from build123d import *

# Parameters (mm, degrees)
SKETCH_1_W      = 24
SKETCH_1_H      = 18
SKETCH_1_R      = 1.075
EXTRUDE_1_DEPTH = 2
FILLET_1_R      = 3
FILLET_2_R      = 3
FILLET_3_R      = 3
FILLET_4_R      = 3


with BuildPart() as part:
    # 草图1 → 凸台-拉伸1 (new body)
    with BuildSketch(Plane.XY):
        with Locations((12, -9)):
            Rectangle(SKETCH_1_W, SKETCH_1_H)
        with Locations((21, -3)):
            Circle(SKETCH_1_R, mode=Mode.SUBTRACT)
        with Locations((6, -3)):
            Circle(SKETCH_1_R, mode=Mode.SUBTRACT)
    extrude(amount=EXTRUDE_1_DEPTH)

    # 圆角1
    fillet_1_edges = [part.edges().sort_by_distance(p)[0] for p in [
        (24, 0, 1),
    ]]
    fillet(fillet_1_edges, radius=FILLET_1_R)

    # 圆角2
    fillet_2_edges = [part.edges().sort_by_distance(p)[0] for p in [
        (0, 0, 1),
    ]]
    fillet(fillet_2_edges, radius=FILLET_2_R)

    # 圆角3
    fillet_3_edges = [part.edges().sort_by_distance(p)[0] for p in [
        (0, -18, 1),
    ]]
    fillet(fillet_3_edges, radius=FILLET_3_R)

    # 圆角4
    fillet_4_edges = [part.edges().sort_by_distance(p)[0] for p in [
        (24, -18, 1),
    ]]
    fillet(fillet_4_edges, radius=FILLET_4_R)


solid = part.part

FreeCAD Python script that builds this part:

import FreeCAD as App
import Part
import Sketcher
from FreeCAD import Vector


def edges_at(feature, points):
    """Names of the edges that pass closest to the given points."""
    edges = feature.Shape.Edges
    near = lambda p: min(range(len(edges)), key=lambda i: edges[i].distToShape(Part.Vertex(*p))[0])
    return sorted({f"Edge{near(p) + 1}" for p in points})

doc = App.newDocument("Part")
body = doc.addObject("PartDesign::Body", "Body")

sketch1 = body.newObject("Sketcher::SketchObject", "Sketch")
sketch1.AttachmentSupport = (doc.getObject("XY_Plane"), [""])
sketch1.MapMode = "FlatFace"
sketch1.addGeometry([
    Part.LineSegment(Vector(0, 0, 0), Vector(0, -18, 0)),
    Part.LineSegment(Vector(0, -18, 0), Vector(24, -18, 0)),
    Part.LineSegment(Vector(24, -18, 0), Vector(24, 0, 0)),
    Part.LineSegment(Vector(24, 0, 0), Vector(0, 0, 0)),
    Part.Circle(Vector(6, -3, 0), Vector(0, 0, 1), 1.1),
    Part.Circle(Vector(21, -3, 0), Vector(0, 0, 1), 1.1),
], False)
sketch1.addConstraint([
    Sketcher.Constraint("Coincident", 0, 2, 1, 1),
    Sketcher.Constraint("Coincident", 1, 2, 2, 1),
    Sketcher.Constraint("Coincident", 2, 2, 3, 1),
    Sketcher.Constraint("Coincident", 3, 2, 0, 1),
    Sketcher.Constraint("Vertical", 0),
    Sketcher.Constraint("Horizontal", 1),
    Sketcher.Constraint("Vertical", 2),
    Sketcher.Constraint("Horizontal", 3),
    Sketcher.Constraint("Coincident", 3, 2, -1, 1),
    Sketcher.Constraint("Equal", 4, 5),
    Sketcher.Constraint("Horizontal", 4, 3, 5, 3),
    Sketcher.Constraint("Diameter", 4, 2.15),
    Sketcher.Constraint("DistanceX", 1, 1, 1, 2, 24.0),
    Sketcher.Constraint("DistanceY", 0, 2, 0, 1, 18.0),
    Sketcher.Constraint("DistanceX", -1, 1, 4, 3, 6.0),
    Sketcher.Constraint("DistanceY", 4, 3, -1, 1, 3.0),
    Sketcher.Constraint("DistanceX", -1, 1, 5, 3, 21.0),
])
pad1 = body.newObject("PartDesign::Pad", "Pad")
pad1.Profile = sketch1
pad1.Length = 2
doc.recompute()

fillet = body.newObject("PartDesign::Fillet", "Fillet")
fillet.Base = (pad1, edges_at(pad1, [(24, 0, 1)]))
fillet.Radius = 3
doc.recompute()

fillet2 = body.newObject("PartDesign::Fillet", "Fillet001")
fillet2.Base = (fillet, edges_at(fillet, [(0, 0, 1)]))
fillet2.Radius = 3
doc.recompute()

fillet3 = body.newObject("PartDesign::Fillet", "Fillet002")
fillet3.Base = (fillet2, edges_at(fillet2, [(0, -18, 1)]))
fillet3.Radius = 3
doc.recompute()

fillet4 = body.newObject("PartDesign::Fillet", "Fillet003")
fillet4.Base = (fillet3, edges_at(fillet3, [(24, -18, 1)]))
fillet4.Radius = 3

doc.recompute()
